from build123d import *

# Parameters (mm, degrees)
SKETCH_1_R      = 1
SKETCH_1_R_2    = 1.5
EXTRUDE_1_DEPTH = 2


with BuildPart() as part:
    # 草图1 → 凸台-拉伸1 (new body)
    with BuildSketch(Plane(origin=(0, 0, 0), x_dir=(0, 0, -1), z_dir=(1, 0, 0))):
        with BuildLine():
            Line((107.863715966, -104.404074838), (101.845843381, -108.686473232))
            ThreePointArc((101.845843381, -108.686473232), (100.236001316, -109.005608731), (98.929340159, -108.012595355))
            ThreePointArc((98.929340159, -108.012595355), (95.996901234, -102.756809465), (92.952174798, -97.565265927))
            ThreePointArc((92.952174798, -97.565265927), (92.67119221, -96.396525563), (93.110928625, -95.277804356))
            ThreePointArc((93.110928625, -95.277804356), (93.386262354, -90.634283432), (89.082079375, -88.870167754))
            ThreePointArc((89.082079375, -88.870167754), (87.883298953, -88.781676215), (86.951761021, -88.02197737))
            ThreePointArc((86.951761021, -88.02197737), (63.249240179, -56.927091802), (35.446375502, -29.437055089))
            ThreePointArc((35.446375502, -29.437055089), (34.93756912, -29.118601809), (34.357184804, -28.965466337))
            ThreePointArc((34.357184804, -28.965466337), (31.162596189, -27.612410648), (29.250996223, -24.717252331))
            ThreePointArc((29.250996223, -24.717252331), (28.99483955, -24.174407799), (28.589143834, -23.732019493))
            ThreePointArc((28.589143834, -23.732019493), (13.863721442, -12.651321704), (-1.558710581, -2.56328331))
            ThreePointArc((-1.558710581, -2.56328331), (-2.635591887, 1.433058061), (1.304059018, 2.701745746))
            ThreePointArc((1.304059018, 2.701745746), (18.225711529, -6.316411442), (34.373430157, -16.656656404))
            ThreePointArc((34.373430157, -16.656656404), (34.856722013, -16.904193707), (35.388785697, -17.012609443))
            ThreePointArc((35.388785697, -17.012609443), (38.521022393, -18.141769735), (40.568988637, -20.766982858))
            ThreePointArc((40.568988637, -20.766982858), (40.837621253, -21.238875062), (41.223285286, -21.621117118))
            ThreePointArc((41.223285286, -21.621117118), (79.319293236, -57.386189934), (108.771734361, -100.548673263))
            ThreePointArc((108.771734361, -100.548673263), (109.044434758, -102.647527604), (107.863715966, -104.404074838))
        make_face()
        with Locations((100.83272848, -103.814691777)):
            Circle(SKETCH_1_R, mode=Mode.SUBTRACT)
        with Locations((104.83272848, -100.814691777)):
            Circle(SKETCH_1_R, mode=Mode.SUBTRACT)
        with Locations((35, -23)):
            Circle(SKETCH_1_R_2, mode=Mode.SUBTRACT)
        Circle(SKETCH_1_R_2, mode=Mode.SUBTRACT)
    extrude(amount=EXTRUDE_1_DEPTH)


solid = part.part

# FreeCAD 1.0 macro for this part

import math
import FreeCAD as App
import Part
import Sketcher
from FreeCAD import Vector
Q = App.Units.Quantity

doc = App.newDocument("Part")
params = doc.addObject("Spreadsheet::Sheet", "Params")
for row, (alias, value) in enumerate([
    ("sketch1_diameter", "2 mm"),
    ("sketch1_diameter2", "2 mm"),
    ("sketch1_diameter3", "3 mm"),
    ("sketch1_diameter4", "3 mm"),
    ("sketch1_radius", "3 mm"),
    ("pad1_length", "2 mm"),
], start=1):
    params.set(f"A{row}", alias)
    params.set(f"B{row}", "=" + value)
    params.setAlias(f"B{row}", alias)

body = doc.addObject("PartDesign::Body", "Body")

# Sketch on YZ plane
sketch1 = body.newObject("Sketcher::SketchObject", "Sketch")
sketch1.AttachmentSupport = (doc.getObject("YZ_Plane"), [""])
sketch1.MapMode = "FlatFace"
sketch1.addGeometry([
    Part.LineSegment(Vector(-108.686473, -101.845843, 0), Vector(-104.404075, -107.863716, 0)),  # 0
    Part.ArcOfCircle(Part.Circle(Vector(-101.959789, -106.124329, 0), Vector(0, 0, 1), 3), math.radians(-144.563838), math.radians(-61.941564)),  # 1
    Part.ArcOfCircle(Part.Circle(Vector(-213.437914, 103.020662, 0), Vector(0, 0, 1), 240), math.radians(-61.941564), math.radians(-36.94273)),  # 2
    Part.ArcOfCircle(Part.Circle(Vector(-20.022644, -42.425318, 0), Vector(0, 0, 1), 2), math.radians(111.84948), math.radians(143.05727)),  # 3
    Part.ArcOfCircle(Part.Circle(Vector(-23, -35, 0), Vector(0, 0, 1), 6), math.radians(-68.15052), math.radians(-3.715233)),  # 4
    Part.ArcOfCircle(Part.Circle(Vector(-15.016813, -35.518381, 0), Vector(0, 0, 1), 2), math.radians(145.076977), math.radians(176.284767)),  # 5
    Part.ArcOfCircle(Part.Circle(Vector(-213.437914, 103.020662, 0), Vector(0, 0, 1), 240), math.radians(-34.923023), math.radians(-25.765337)),  # 6
    Part.ArcOfCircle(Part.Circle(Vector(0, 0, 0), Vector(0, 0, 1), 3), math.radians(-25.765337), math.radians(148.696575)),  # 7
    Part.ArcOfCircle(Part.Circle(Vector(-241.803059, 147.038365, 0), Vector(0, 0, 1), 280), math.radians(-38.846868), math.radians(-31.303425)),  # 8
    Part.ArcOfCircle(Part.Circle(Vector(-25.28967, -27.334662, 0), Vector(0, 0, 1), 2), math.radians(-73.368887), math.radians(-38.846868)),  # 9
    Part.ArcOfCircle(Part.Circle(Vector(-23, -35, 0), Vector(0, 0, 1), 6), math.radians(106.631113), math.radians(173.849763)),  # 10
    Part.ArcOfCircle(Part.Circle(Vector(-30.953955, -34.142913, 0), Vector(0, 0, 1), 2), math.radians(-40.672255), math.radians(-6.150237)),  # 11
    Part.ArcOfCircle(Part.Circle(Vector(-241.803059, 147.038365, 0), Vector(0, 0, 1), 280), math.radians(-56.686609), math.radians(-40.672256)),  # 12
    Part.ArcOfCircle(Part.Circle(Vector(-86.923541, -88.623119, 0), Vector(0, 0, 1), 2), math.radians(123.313391), math.radians(193.266468)),  # 13
    Part.ArcOfCircle(Part.Circle(Vector(-92.763421, -90, 0), Vector(0, 0, 1), 4), math.radians(-128.9466), math.radians(13.266468)),  # 14
    Part.ArcOfCircle(Part.Circle(Vector(-96.534996, -94.666393, 0), Vector(0, 0, 1), 2), math.radians(51.0534), math.radians(121.006477)),  # 15
    Part.ArcOfCircle(Part.Circle(Vector(-241.80306, 147.038366, 0), Vector(0, 0, 1), 280.000001), math.radians(-61.45668), math.radians(-58.993523)),  # 16
    Part.ArcOfCircle(Part.Circle(Vector(-107.056949, -100.686252, 0), Vector(0, 0, 1), 2), math.radians(118.54332), math.radians(215.436162)),  # 17
    Part.Circle(Vector(-103.814692, -100.832728, 0), Vector(0, 0, 1), 1),  # 18
    Part.Circle(Vector(-100.814692, -104.832728, 0), Vector(0, 0, 1), 1),  # 19
    Part.Circle(Vector(-23, -35, 0), Vector(0, 0, 1), 1.5),  # 20
    Part.Circle(Vector(0, 0, 0), Vector(0, 0, 1), 1.5),  # 21
], False)
sketch1.addConstraint([
    Sketcher.Constraint("Coincident", 0, 2, 1, 1),
    Sketcher.Constraint("Coincident", 1, 2, 2, 1),
    Sketcher.Constraint("Coincident", 2, 2, 3, 2),
    Sketcher.Constraint("Coincident", 3, 1, 4, 1),
    Sketcher.Constraint("Coincident", 4, 2, 5, 2),
    Sketcher.Constraint("Coincident", 5, 1, 6, 1),
    Sketcher.Constraint("Coincident", 6, 2, 7, 1),
    Sketcher.Constraint("Coincident", 7, 2, 8, 2),
    Sketcher.Constraint("Coincident", 8, 1, 9, 2),
    Sketcher.Constraint("Coincident", 9, 1, 10, 1),
    Sketcher.Constraint("Coincident", 10, 2, 11, 2),
    Sketcher.Constraint("Coincident", 11, 1, 12, 2),
    Sketcher.Constraint("Coincident", 12, 1, 13, 1),
    Sketcher.Constraint("Coincident", 13, 2, 14, 2),
    Sketcher.Constraint("Coincident", 14, 1, 15, 1),
    Sketcher.Constraint("Coincident", 15, 2, 16, 2),
    Sketcher.Constraint("Coincident", 16, 1, 17, 1),
    Sketcher.Constraint("Coincident", 17, 2, 0, 1),
    Sketcher.Constraint("Coincident", 7, 3, -1, 1),
    Sketcher.Constraint("Coincident", 21, 3, -1, 1),
    Sketcher.Constraint("Coincident", 6, 3, 2, 3),
    Sketcher.Constraint("Coincident", 10, 3, 4, 3),
    Sketcher.Constraint("Coincident", 12, 3, 8, 3),
    Sketcher.Constraint("Coincident", 16, 3, 8, 3),
    Sketcher.Constraint("Coincident", 20, 3, 4, 3),
    Sketcher.Constraint("Diameter", 18, Q("2 mm")),
    Sketcher.Constraint("Diameter", 19, Q("2 mm")),
    Sketcher.Constraint("Diameter", 20, Q("3 mm")),
    Sketcher.Constraint("Diameter", 21, Q("3 mm")),
    Sketcher.Constraint("Radius", 1, Q("3 mm")),
    Sketcher.Constraint("Radius", 2, Q("240 mm")),
    Sketcher.Constraint("Radius", 3, Q("2 mm")),
    Sketcher.Constraint("Radius", 4, Q("6 mm")),
    Sketcher.Constraint("Radius", 5, Q("2 mm")),
    Sketcher.Constraint("Radius", 6, Q("240 mm")),
    Sketcher.Constraint("Radius", 7, Q("3 mm")),
    Sketcher.Constraint("Radius", 8, Q("280 mm")),
    Sketcher.Constraint("Radius", 9, Q("2 mm")),
    Sketcher.Constraint("Radius", 10, Q("6 mm")),
    Sketcher.Constraint("Radius", 11, Q("2 mm")),
    Sketcher.Constraint("Radius", 12, Q("280 mm")),
    Sketcher.Constraint("Radius", 13, Q("2 mm")),
    Sketcher.Constraint("Radius", 14, Q("4 mm")),
    Sketcher.Constraint("Radius", 15, Q("2 mm")),
    Sketcher.Constraint("Radius", 16, Q("280.000001 mm")),
    Sketcher.Constraint("Radius", 17, Q("2 mm")),
    Sketcher.Constraint("DistanceX", 4, 3, -1, 1, Q("23 mm")),
    Sketcher.Constraint("DistanceY", 4, 3, -1, 1, Q("35 mm")),
    Sketcher.Constraint("DistanceY", 14, 3, -1, 1, Q("90 mm")),
    Sketcher.Constraint("DistanceX", 18, 3, 19, 3, Q("3 mm")),
    Sketcher.Constraint("DistanceY", 19, 3, 18, 3, Q("4 mm")),
    Sketcher.Constraint("DistanceX", 2, 3, 5, 3, Q("198.421101 mm")),
    Sketcher.Constraint("DistanceY", 13, 3, 3, 3, Q("46.197801 mm")),
    Sketcher.Constraint("DistanceY", 1, 3, 18, 3, Q("5.291601 mm")),
    Sketcher.Constraint("DistanceX", 0, 2, 1, 2, Q("3.855402 mm")),
    Sketcher.Constraint("DistanceX", 11, 3, 11, 1, Q("1.5169 mm")),
    Sketcher.Constraint("DistanceX", 15, 2, 13, 2, Q("8.695098 mm")),
    Sketcher.Constraint("DistanceX", 17, 2, 0, 2, Q("4.282398 mm")),
    Sketcher.Constraint("Distance", 0, Q("7.386049 mm")),
    Sketcher.Constraint("DistanceX", 1, 3, -1, 1, Q("101.959789 mm")),
    Sketcher.Constraint("DistanceX", 8, 3, -1, 1, Q("241.803059 mm")),
    Sketcher.Constraint("DistanceX", 18, 3, -1, 1, Q("103.814692 mm")),
    Sketcher.Constraint("DistanceY", 3, 1, -1, 1, Q("40.568989 mm")),
    Sketcher.Constraint("DistanceX", 4, 2, -1, 1, Q("17.012609 mm")),
    Sketcher.Constraint("DistanceY", 5, 1, -1, 1, Q("34.37343 mm")),
    Sketcher.Constraint("DistanceY", 6, 2, -1, 1, Q("1.304059 mm")),
    Sketcher.Constraint("DistanceY", -1, 1, 7, 2, Q("1.558711 mm")),
    Sketcher.Constraint("DistanceX", 8, 1, -1, 1, Q("23.732019 mm")),
    Sketcher.Constraint("DistanceY", 12, 1, -1, 1, Q("86.951761 mm")),
    Sketcher.Constraint("DistanceY", 13, 2, -1, 1, Q("89.082079 mm")),
    Sketcher.Constraint("DistanceY", 14, 1, -1, 1, Q("93.110929 mm")),
    Sketcher.Constraint("DistanceY", 16, 1, -1, 1, Q("98.92934 mm")),
    Sketcher.Constraint("DistanceX", 0, 2, 15, 3, Q("7.869079 mm")),
    Sketcher.Constraint("DistanceX", 11, 3, 10, 2, Q("1.988489 mm")),
    Sketcher.Constraint("DistanceY", 10, 2, 9, 1, Q("5.106189 mm")),
    Sketcher.Constraint("DistanceX", 2, 2, -1, 1, Q("21.621117 mm")),
])
sketch1.setExpression("Constraints[25]", "Params.sketch1_diameter")
sketch1.setExpression("Constraints[26]", "Params.sketch1_diameter2")
sketch1.setExpression("Constraints[27]", "Params.sketch1_diameter3")
sketch1.setExpression("Constraints[28]", "Params.sketch1_diameter4")
sketch1.setExpression("Constraints[29]", "Params.sketch1_radius")
pad1 = body.newObject("PartDesign::Pad", "Pad")
pad1.Profile = sketch1
pad1.setExpression("Length", "Params.pad1_length")

doc.recompute()
